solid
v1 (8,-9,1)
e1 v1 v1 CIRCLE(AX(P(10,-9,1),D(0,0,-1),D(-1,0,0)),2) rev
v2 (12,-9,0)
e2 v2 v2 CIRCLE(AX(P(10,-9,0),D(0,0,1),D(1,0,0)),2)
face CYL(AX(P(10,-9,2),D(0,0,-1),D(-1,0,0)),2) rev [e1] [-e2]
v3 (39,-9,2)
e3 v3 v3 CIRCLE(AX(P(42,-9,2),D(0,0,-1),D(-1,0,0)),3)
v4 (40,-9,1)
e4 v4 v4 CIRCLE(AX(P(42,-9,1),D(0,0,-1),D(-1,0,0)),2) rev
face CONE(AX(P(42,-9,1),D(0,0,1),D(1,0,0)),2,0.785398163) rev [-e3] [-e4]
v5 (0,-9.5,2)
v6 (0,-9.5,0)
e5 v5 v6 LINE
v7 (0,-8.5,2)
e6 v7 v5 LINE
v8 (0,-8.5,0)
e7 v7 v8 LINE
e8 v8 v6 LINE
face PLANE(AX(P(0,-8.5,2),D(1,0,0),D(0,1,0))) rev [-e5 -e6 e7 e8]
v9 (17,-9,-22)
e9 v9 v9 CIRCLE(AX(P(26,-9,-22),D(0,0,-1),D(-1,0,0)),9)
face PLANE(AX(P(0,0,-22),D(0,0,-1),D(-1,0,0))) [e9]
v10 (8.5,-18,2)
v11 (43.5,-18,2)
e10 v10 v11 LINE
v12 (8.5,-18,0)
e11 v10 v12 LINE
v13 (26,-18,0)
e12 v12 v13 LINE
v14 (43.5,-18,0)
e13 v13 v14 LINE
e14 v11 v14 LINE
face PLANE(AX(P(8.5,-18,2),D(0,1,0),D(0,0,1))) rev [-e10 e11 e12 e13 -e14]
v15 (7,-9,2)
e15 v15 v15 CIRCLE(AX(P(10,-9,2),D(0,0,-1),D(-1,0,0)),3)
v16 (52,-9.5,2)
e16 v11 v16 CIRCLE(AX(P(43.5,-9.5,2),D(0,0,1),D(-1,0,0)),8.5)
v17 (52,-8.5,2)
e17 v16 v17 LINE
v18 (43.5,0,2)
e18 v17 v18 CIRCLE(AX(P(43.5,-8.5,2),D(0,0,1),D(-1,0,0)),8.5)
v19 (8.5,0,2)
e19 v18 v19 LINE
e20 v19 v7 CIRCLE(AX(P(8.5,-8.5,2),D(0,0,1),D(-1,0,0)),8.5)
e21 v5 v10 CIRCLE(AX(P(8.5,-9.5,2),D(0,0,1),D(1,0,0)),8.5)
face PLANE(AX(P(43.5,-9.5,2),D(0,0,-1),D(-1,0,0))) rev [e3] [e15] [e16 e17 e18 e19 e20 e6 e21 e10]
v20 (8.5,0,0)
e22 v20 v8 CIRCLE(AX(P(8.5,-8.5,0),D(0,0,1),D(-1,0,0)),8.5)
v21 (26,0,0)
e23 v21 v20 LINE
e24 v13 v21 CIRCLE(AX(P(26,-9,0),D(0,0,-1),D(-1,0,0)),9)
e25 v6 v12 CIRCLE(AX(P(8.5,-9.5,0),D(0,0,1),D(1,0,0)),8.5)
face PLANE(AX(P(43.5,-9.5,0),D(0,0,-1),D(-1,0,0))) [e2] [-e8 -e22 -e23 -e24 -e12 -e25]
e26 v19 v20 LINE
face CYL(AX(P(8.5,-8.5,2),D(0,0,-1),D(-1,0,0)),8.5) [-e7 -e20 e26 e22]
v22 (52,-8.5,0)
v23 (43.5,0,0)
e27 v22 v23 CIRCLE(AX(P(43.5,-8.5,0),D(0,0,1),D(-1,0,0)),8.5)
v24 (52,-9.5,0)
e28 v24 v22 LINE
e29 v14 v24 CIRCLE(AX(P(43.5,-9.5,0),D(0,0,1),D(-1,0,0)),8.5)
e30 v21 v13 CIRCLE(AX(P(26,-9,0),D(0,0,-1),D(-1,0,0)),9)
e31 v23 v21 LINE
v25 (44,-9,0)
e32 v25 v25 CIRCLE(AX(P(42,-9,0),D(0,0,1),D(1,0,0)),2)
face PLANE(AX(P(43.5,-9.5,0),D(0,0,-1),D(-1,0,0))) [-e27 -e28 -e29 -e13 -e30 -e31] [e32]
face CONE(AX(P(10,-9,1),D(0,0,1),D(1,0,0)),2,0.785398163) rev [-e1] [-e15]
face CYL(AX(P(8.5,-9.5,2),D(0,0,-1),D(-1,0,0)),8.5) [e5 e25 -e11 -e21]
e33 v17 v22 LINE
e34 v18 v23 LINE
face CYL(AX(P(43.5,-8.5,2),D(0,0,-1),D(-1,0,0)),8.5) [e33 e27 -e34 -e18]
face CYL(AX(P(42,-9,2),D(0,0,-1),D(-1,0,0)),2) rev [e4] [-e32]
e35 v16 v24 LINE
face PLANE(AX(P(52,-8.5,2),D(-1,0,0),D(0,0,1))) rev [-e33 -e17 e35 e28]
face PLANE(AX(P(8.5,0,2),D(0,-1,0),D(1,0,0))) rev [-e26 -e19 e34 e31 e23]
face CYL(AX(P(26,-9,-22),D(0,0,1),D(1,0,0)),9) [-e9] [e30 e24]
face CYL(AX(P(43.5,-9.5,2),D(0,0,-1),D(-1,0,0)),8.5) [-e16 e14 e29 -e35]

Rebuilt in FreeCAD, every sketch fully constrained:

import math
import FreeCAD as App
import Part
import Sketcher

V = App.Vector


def edges_at(feature, points):
    """Names of the edges that pass closest to the given points."""
    edges = feature.Shape.Edges
    near = lambda p: min(range(len(edges)), key=lambda i: edges[i].distToShape(Part.Vertex(*p))[0])
    return sorted({f"Edge{near(p) + 1}" for p in points})

doc = App.newDocument("Part")
body = doc.addObject("PartDesign::Body", "Body")

sketch1 = body.newObject("Sketcher::SketchObject", "Sketch")
sketch1.AttachmentSupport = (doc.getObject("XY_Plane"), [""])
sketch1.MapMode = "FlatFace"
sketch1.addGeometry([
    Part.LineSegment(V(43.5, 0, 0), V(8.5, 0, 0)),
    Part.ArcOfCircle(Part.Circle(V(8.5, -8.5, 0), V(0, 0, 1), 8.5), math.radians(90), math.radians(180)),
    Part.LineSegment(V(0, -8.5, 0), V(0, -9.5, 0)),
    Part.ArcOfCircle(Part.Circle(V(8.5, -9.5, 0), V(0, 0, 1), 8.5), math.radians(180), math.radians(270)),
    Part.LineSegment(V(8.5, -18, 0), V(43.5, -18, 0)),
    Part.ArcOfCircle(Part.Circle(V(43.5, -9.5, 0), V(0, 0, 1), 8.5), math.radians(-90), math.radians(0)),
    Part.LineSegment(V(52, -9.5, 0), V(52, -8.5, 0)),
    Part.ArcOfCircle(Part.Circle(V(43.5, -8.5, 0), V(0, 0, 1), 8.5), math.radians(0), math.radians(90)),
    Part.Circle(V(42, -9, 0), V(0, 0, 1), 2),
    Part.Circle(V(10, -9, 0), V(0, 0, 1), 2),
], False)
sketch1.addConstraint([
    Sketcher.Constraint("Tangent", 0, 2, 1, 1),
    Sketcher.Constraint("Tangent", 1, 2, 2, 1),
    Sketcher.Constraint("Tangent", 2, 2, 3, 1),
    Sketcher.Constraint("Tangent", 3, 2, 4, 1),
    Sketcher.Constraint("Tangent", 4, 2, 5, 1),
    Sketcher.Constraint("Tangent", 5, 2, 6, 1),
    Sketcher.Constraint("Tangent", 6, 2, 7, 1),
    Sketcher.Constraint("Tangent", 7, 2, 0, 1),
    Sketcher.Constraint("Horizontal", 0),
    Sketcher.Constraint("Vertical", 2),
    Sketcher.Constraint("Horizontal", 4),
    Sketcher.Constraint("Vertical", 6),
    Sketcher.Constraint("Equal", 1, 3),
    Sketcher.Constraint("Equal", 3, 5),
    Sketcher.Constraint("Equal", 5, 7),
    Sketcher.Constraint("Equal", 8, 9),
    Sketcher.Constraint("PointOnObject", 0, 2, -1),
    Sketcher.Constraint("PointOnObject", 1, 2, -2),
    Sketcher.Constraint("Horizontal", 8, 3, 9, 3),
    Sketcher.Constraint("Diameter", 8, 4.0),
    Sketcher.Constraint("Radius", 1, 8.5),
    Sketcher.Constraint("DistanceX", 0, 2, 0, 1, 35.0),
    Sketcher.Constraint("DistanceY", 2, 2, 2, 1, 1.0),
    Sketcher.Constraint("DistanceX", -1, 1, 8, 3, 42.0),
    Sketcher.Constraint("DistanceY", 8, 3, -1, 1, 9.0),
    Sketcher.Constraint("DistanceX", -1, 1, 9, 3, 10.0),
])
pad1 = body.newObject("PartDesign::Pad", "Pad")
pad1.Profile = sketch1
pad1.Length = 2

sketch2 = body.newObject("Sketcher::SketchObject", "Sketch001")
sketch2.AttachmentSupport = (doc.getObject("XY_Plane"), [""])
sketch2.MapMode = "FlatFace"
sketch2.addGeometry([
    Part.ArcOfCircle(Part.Circle(V(26, -9, 0), V(0, 0, 1), 9), math.radians(180), math.radians(270)),
    Part.ArcOfCircle(Part.Circle(V(26, -9, 0), V(0, 0, 1), 9), math.radians(90), math.radians(180)),
    Part.ArcOfCircle(Part.Circle(V(26, -9, 0), V(0, 0, 1), 9), math.radians(0), math.radians(90)),
    Part.ArcOfCircle(Part.Circle(V(26, -9, 0), V(0, 0, 1), 9), math.radians(-90), math.radians(0)),
], False)
sketch2.addConstraint([
    Sketcher.Constraint("Tangent", 0, 1, 1, 2),
    Sketcher.Constraint("Tangent", 1, 1, 2, 2),
    Sketcher.Constraint("Tangent", 2, 1, 3, 2),
    Sketcher.Constraint("Tangent", 3, 1, 0, 2),
    Sketcher.Constraint("Equal", 0, 1),
    Sketcher.Constraint("PointOnObject", 1, 1, -1),
    Sketcher.Constraint("Horizontal", 3, 3, 0, 1),
    Sketcher.Constraint("Horizontal", 0, 1, 2, 1),
    Sketcher.Constraint("Vertical", 3, 3, 1, 1),
    Sketcher.Constraint("Vertical", 1, 1, 3, 1),
    Sketcher.Constraint("Radius", 0, 9.0),
    Sketcher.Constraint("DistanceX", -1, 1, 0, 3, 26.0),
])
pad2 = body.newObject("PartDesign::Pad", "Pad001")
pad2.Profile = sketch2
pad2.Length = 22
pad2.Reversed = True
doc.recompute()

chamfer = body.newObject("PartDesign::Chamfer", "Chamfer")
chamfer.Base = (pad2, edges_at(pad2, [(8, -9, 2), (40, -9, 2)]))
chamfer.Size = 1

doc.recompute()
